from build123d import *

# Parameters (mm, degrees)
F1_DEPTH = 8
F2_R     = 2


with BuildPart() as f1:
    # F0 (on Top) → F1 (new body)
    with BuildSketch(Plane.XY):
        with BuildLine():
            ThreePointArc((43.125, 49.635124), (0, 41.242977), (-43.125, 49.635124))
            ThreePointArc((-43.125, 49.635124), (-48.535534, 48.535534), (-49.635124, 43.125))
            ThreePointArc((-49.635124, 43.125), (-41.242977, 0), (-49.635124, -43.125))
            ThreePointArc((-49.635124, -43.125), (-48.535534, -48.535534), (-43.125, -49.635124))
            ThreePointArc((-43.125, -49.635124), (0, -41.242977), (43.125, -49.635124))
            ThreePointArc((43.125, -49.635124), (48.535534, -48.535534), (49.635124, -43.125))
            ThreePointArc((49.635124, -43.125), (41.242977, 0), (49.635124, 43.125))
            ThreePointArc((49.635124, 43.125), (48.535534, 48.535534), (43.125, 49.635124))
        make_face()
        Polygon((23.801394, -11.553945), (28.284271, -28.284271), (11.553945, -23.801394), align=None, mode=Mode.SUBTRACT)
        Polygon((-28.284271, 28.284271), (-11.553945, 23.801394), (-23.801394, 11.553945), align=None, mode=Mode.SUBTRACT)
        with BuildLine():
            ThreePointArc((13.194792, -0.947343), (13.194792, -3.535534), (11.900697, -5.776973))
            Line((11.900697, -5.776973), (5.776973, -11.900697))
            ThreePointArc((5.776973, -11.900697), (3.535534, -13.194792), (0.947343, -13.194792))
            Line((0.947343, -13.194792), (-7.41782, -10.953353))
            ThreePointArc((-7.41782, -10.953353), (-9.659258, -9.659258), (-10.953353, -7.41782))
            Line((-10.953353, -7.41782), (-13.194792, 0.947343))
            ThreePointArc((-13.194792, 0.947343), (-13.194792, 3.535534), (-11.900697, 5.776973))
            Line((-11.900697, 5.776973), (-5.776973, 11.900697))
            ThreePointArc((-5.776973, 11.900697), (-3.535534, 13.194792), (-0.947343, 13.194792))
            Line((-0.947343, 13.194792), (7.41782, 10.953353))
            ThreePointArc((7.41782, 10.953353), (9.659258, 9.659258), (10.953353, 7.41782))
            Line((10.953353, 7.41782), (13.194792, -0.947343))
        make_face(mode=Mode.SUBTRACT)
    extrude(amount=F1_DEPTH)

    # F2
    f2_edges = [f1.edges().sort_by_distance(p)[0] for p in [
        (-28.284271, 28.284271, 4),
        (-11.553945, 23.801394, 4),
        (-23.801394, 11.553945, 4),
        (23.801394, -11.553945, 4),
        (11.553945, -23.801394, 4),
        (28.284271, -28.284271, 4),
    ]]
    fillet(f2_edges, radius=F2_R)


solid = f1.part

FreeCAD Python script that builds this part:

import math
import FreeCAD as App
import Part
import Sketcher
from FreeCAD import Vector
Q = App.Units.Quantity


def edges_at(feature, points):
    """Names of the edges that pass closest to the given points."""
    edges = feature.Shape.Edges
    near = lambda p: min(range(len(edges)), key=lambda i: edges[i].distToShape(Part.Vertex(*p))[0])
    return sorted({f"Edge{near(p) + 1}" for p in points})

doc = App.newDocument("Part")
params = doc.addObject("Spreadsheet::Sheet", "Params")
for row, (alias, value) in enumerate([
    ("sketch1_radius", "5 mm"),
    ("sketch1_radius2", "5.000002 mm"),
    ("pad1_length", "8 mm"),
    ("fillet_radius", "2 mm"),
], start=1):
    params.set(f"A{row}", alias)
    params.set(f"B{row}", "=" + value)
    params.setAlias(f"B{row}", alias)

body = doc.addObject("PartDesign::Body", "Body")

# Sketch on XY plane
sketch1 = body.newObject("Sketcher::SketchObject", "Sketch")
sketch1.AttachmentSupport = (doc.getObject("XY_Plane"), [""])
sketch1.MapMode = "FlatFace"
sketch1.addGeometry(Part.ArcOfCircle(Part.Circle(Vector(0, 156.2, 0), Vector(0, 0, 1), 115), math.radians(-112), math.radians(-68)), False)
sketch1.addGeometry(Part.ArcOfCircle(Part.Circle(Vector(-45, 45, 0), Vector(0, 0, 1), 5), math.radians(68), math.radians(202)), False)
sketch1.addGeometry(Part.ArcOfCircle(Part.Circle(Vector(-156.2, 0, 0), Vector(0, 0, 1), 115), math.radians(-22), math.radians(22)), False)
sketch1.addGeometry(Part.ArcOfCircle(Part.Circle(Vector(-45, -45, 0), Vector(0, 0, 1), 5), math.radians(158), math.radians(292)), False)
sketch1.addGeometry(Part.ArcOfCircle(Part.Circle(Vector(0, -156.2, 0), Vector(0, 0, 1), 115), math.radians(68), math.radians(112)), False)
sketch1.addGeometry(Part.ArcOfCircle(Part.Circle(Vector(45, -45, 0), Vector(0, 0, 1), 5), math.radians(-112), math.radians(22)), False)
sketch1.addGeometry(Part.ArcOfCircle(Part.Circle(Vector(156.2, 0, 0), Vector(0, 0, 1), 115), math.radians(158), math.radians(202)), False)
sketch1.addGeometry(Part.ArcOfCircle(Part.Circle(Vector(45, 45, 0), Vector(0, 0, 1), 5), math.radians(-22), math.radians(112)), False)
sketch1.addGeometry(Part.LineSegment(Vector(11, 7.4, 0), Vector(13.2, -0.9, 0)), False)
sketch1.addGeometry(Part.ArcOfCircle(Part.Circle(Vector(8.4, -2.2, 0), Vector(0, 0, 1), 5), math.radians(-45), math.radians(15)), False)
sketch1.addGeometry(Part.LineSegment(Vector(11.9, -5.8, 0), Vector(5.8, -11.9, 0)), False)
sketch1.addGeometry(Part.ArcOfCircle(Part.Circle(Vector(2.2, -8.4, 0), Vector(0, 0, 1), 5), math.radians(-105), math.radians(-45)), False)
sketch1.addGeometry(Part.LineSegment(Vector(0.9, -13.2, 0), Vector(-7.4, -11, 0)), False)
sketch1.addGeometry(Part.ArcOfCircle(Part.Circle(Vector(-6.1, -6.1, 0), Vector(0, 0, 1), 5), math.radians(-165), math.radians(-105)), False)
sketch1.addGeometry(Part.LineSegment(Vector(-11, -7.4, 0), Vector(-13.2, 0.9, 0)), False)
sketch1.addGeometry(Part.ArcOfCircle(Part.Circle(Vector(-8.4, 2.2, 0), Vector(0, 0, 1), 5), math.radians(135), math.radians(195)), False)
sketch1.addGeometry(Part.LineSegment(Vector(-11.9, 5.8, 0), Vector(-5.8, 11.9, 0)), False)
sketch1.addGeometry(Part.ArcOfCircle(Part.Circle(Vector(-2.2, 8.4, 0), Vector(0, 0, 1), 5), math.radians(75), math.radians(135)), False)
sketch1.addGeometry(Part.LineSegment(Vector(-0.9, 13.2, 0), Vector(7.4, 11, 0)), False)
sketch1.addGeometry(Part.ArcOfCircle(Part.Circle(Vector(6.1, 6.1, 0), Vector(0, 0, 1), 5), math.radians(15), math.radians(75)), False)
sketch1.addGeometry(Part.LineSegment(Vector(11.6, -23.8, 0), Vector(23.8, -11.6, 0)), False)
sketch1.addGeometry(Part.LineSegment(Vector(23.8, -11.6, 0), Vector(28.3, -28.3, 0)), False)
sketch1.addGeometry(Part.LineSegment(Vector(28.3, -28.3, 0), Vector(11.6, -23.8, 0)), False)
sketch1.addGeometry(Part.LineSegment(Vector(-23.8, 11.6, 0), Vector(-28.3, 28.3, 0)), False)
sketch1.addGeometry(Part.LineSegment(Vector(-28.3, 28.3, 0), Vector(-11.6, 23.8, 0)), False)
sketch1.addGeometry(Part.LineSegment(Vector(-11.6, 23.8, 0), Vector(-23.8, 11.6, 0)), False)
sketch1.addConstraint(Sketcher.Constraint("Tangent", 0, 1, 1, 1))
sketch1.addConstraint(Sketcher.Constraint("Tangent", 1, 2, 2, 2))
sketch1.addConstraint(Sketcher.Constraint("Tangent", 2, 1, 3, 1))
sketch1.addConstraint(Sketcher.Constraint("Tangent", 3, 2, 4, 2))
sketch1.addConstraint(Sketcher.Constraint("Tangent", 4, 1, 5, 1))
sketch1.addConstraint(Sketcher.Constraint("Tangent", 5, 2, 6, 2))
sketch1.addConstraint(Sketcher.Constraint("Tangent", 6, 1, 7, 1))
sketch1.addConstraint(Sketcher.Constraint("Tangent", 7, 2, 0, 2))
sketch1.addConstraint(Sketcher.Constraint("Tangent", 8, 2, 9, 2))
sketch1.addConstraint(Sketcher.Constraint("Tangent", 9, 1, 10, 1))
sketch1.addConstraint(Sketcher.Constraint("Tangent", 10, 2, 11, 2))
sketch1.addConstraint(Sketcher.Constraint("Tangent", 11, 1, 12, 1))
sketch1.addConstraint(Sketcher.Constraint("Tangent", 12, 2, 13, 2))
sketch1.addConstraint(Sketcher.Constraint("Tangent", 13, 1, 14, 1))
sketch1.addConstraint(Sketcher.Constraint("Tangent", 14, 2, 15, 2))
sketch1.addConstraint(Sketcher.Constraint("Tangent", 15, 1, 16, 1))
sketch1.addConstraint(Sketcher.Constraint("Tangent", 16, 2, 17, 2))
sketch1.addConstraint(Sketcher.Constraint("Tangent", 17, 1, 18, 1))
sketch1.addConstraint(Sketcher.Constraint("Tangent", 18, 2, 19, 2))
sketch1.addConstraint(Sketcher.Constraint("Tangent", 19, 1, 8, 1))
sketch1.addConstraint(Sketcher.Constraint("Coincident", 20, 2, 21, 1))
sketch1.addConstraint(Sketcher.Constraint("Coincident", 21, 2, 22, 1))
sketch1.addConstraint(Sketcher.Constraint("Coincident", 22, 2, 20, 1))
sketch1.addConstraint(Sketcher.Constraint("Coincident", 23, 2, 24, 1))
sketch1.addConstraint(Sketcher.Constraint("Coincident", 24, 2, 25, 1))
sketch1.addConstraint(Sketcher.Constraint("Coincident", 25, 2, 23, 1))
sketch1.addConstraint(Sketcher.Constraint("Equal", 0, 2))
sketch1.addConstraint(Sketcher.Constraint("Equal", 1, 3))
sketch1.addConstraint(Sketcher.Constraint("Equal", 2, 4))
sketch1.addConstraint(Sketcher.Constraint("Equal", 3, 5))
sketch1.addConstraint(Sketcher.Constraint("Equal", 4, 6))
sketch1.addConstraint(Sketcher.Constraint("Equal", 5, 7))
sketch1.addConstraint(Sketcher.Constraint("Equal", 9, 11))
sketch1.addConstraint(Sketcher.Constraint("Equal", 7, 13))
sketch1.addConstraint(Sketcher.Constraint("Equal", 11, 15))
sketch1.addConstraint(Sketcher.Constraint("Equal", 15, 17))
sketch1.addConstraint(Sketcher.Constraint("Equal", 13, 19))
sketch1.addConstraint(Sketcher.Constraint("Symmetric", 0, 3, 4, 3, -1, 1))
sketch1.addConstraint(Sketcher.Constraint("Symmetric", 2, 3, 6, 3, -1, 1))
sketch1.addConstraint(Sketcher.Constraint("Symmetric", 9, 3, 15, 3, -1, 1))
sketch1.addConstraint(Sketcher.Constraint("Symmetric", 11, 3, 17, 3, -1, 1))
sketch1.addConstraint(Sketcher.Constraint("Symmetric", 13, 3, 19, 3, -1, 1))
sketch1.addConstraint(Sketcher.Constraint("Symmetric", 21, 2, 23, 2, -1, 1))
sketch1.addConstraint(Sketcher.Constraint("Symmetric", 22, 2, 24, 2, -1, 1))
sketch1.addConstraint(Sketcher.Constraint("Symmetric", 20, 2, 25, 2, -1, 1))
sketch1.addConstraint(Sketcher.Constraint("Symmetric", 3, 3, 5, 3, -2))
sketch1.addConstraint(Sketcher.Constraint("Parallel", 16, 20))
sketch1.addConstraint(Sketcher.Constraint("Parallel", 14, 21))
sketch1.addConstraint(Sketcher.Constraint("Parallel", 18, 22))
sketch1.addConstraint(Sketcher.Constraint("Equal", 8, 10))
sketch1.addConstraint(Sketcher.Constraint("Equal", 10, 12))
sketch1.addConstraint(Sketcher.Constraint("Equal", 20, 21))
sketch1.addConstraint(Sketcher.Constraint("Equal", 21, 22))
sketch1.addConstraint(Sketcher.Constraint("Radius", 1, 5.0))
sketch1.addConstraint(Sketcher.Constraint("Radius", 9, 5.000002))
sketch1.addConstraint(Sketcher.Constraint("Angle", 8, Q("-74.999998 deg")))
sketch1.addConstraint(Sketcher.Constraint("DistanceX", 1, 3, -1, 1, 45.0))
sketch1.addConstraint(Sketcher.Constraint("DistanceY", -1, 1, 1, 3, 45.0))
sketch1.addConstraint(Sketcher.Constraint("Radius", 0, 114.999997))
sketch1.addConstraint(Sketcher.Constraint("DistanceX", 15, 3, 11, 3, 10.606599))
sketch1.addConstraint(Sketcher.Constraint("DistanceX", 8, 2, 20, 2, 10.606602))
sketch1.addConstraint(Sketcher.Constraint("DistanceY", 22, 2, 11, 1, 10.606602))
sketch1.addConstraint(Sketcher.Constraint("Distance", 20, 17.320508))
sketch1.setExpression("Constraints[53]", "Params.sketch1_radius")
sketch1.setExpression("Constraints[54]", "Params.sketch1_radius2")
pad1 = body.newObject("PartDesign::Pad", "Pad")
pad1.Profile = sketch1
pad1.setExpression("Length", "Params.pad1_length")
doc.recompute()

fillet = body.newObject("PartDesign::Fillet", "Fillet")
fillet.Base = (pad1, edges_at(pad1, [
    (-28.284, 28.284, 4),
    (-11.554, 23.801, 4),
    (-23.801, 11.554, 4),
    (23.801, -11.554, 4),
    (11.554, -23.801, 4),
    (28.284, -28.284, 4),
]))
fillet.setExpression("Radius", "Params.fillet_radius")

doc.recompute()
